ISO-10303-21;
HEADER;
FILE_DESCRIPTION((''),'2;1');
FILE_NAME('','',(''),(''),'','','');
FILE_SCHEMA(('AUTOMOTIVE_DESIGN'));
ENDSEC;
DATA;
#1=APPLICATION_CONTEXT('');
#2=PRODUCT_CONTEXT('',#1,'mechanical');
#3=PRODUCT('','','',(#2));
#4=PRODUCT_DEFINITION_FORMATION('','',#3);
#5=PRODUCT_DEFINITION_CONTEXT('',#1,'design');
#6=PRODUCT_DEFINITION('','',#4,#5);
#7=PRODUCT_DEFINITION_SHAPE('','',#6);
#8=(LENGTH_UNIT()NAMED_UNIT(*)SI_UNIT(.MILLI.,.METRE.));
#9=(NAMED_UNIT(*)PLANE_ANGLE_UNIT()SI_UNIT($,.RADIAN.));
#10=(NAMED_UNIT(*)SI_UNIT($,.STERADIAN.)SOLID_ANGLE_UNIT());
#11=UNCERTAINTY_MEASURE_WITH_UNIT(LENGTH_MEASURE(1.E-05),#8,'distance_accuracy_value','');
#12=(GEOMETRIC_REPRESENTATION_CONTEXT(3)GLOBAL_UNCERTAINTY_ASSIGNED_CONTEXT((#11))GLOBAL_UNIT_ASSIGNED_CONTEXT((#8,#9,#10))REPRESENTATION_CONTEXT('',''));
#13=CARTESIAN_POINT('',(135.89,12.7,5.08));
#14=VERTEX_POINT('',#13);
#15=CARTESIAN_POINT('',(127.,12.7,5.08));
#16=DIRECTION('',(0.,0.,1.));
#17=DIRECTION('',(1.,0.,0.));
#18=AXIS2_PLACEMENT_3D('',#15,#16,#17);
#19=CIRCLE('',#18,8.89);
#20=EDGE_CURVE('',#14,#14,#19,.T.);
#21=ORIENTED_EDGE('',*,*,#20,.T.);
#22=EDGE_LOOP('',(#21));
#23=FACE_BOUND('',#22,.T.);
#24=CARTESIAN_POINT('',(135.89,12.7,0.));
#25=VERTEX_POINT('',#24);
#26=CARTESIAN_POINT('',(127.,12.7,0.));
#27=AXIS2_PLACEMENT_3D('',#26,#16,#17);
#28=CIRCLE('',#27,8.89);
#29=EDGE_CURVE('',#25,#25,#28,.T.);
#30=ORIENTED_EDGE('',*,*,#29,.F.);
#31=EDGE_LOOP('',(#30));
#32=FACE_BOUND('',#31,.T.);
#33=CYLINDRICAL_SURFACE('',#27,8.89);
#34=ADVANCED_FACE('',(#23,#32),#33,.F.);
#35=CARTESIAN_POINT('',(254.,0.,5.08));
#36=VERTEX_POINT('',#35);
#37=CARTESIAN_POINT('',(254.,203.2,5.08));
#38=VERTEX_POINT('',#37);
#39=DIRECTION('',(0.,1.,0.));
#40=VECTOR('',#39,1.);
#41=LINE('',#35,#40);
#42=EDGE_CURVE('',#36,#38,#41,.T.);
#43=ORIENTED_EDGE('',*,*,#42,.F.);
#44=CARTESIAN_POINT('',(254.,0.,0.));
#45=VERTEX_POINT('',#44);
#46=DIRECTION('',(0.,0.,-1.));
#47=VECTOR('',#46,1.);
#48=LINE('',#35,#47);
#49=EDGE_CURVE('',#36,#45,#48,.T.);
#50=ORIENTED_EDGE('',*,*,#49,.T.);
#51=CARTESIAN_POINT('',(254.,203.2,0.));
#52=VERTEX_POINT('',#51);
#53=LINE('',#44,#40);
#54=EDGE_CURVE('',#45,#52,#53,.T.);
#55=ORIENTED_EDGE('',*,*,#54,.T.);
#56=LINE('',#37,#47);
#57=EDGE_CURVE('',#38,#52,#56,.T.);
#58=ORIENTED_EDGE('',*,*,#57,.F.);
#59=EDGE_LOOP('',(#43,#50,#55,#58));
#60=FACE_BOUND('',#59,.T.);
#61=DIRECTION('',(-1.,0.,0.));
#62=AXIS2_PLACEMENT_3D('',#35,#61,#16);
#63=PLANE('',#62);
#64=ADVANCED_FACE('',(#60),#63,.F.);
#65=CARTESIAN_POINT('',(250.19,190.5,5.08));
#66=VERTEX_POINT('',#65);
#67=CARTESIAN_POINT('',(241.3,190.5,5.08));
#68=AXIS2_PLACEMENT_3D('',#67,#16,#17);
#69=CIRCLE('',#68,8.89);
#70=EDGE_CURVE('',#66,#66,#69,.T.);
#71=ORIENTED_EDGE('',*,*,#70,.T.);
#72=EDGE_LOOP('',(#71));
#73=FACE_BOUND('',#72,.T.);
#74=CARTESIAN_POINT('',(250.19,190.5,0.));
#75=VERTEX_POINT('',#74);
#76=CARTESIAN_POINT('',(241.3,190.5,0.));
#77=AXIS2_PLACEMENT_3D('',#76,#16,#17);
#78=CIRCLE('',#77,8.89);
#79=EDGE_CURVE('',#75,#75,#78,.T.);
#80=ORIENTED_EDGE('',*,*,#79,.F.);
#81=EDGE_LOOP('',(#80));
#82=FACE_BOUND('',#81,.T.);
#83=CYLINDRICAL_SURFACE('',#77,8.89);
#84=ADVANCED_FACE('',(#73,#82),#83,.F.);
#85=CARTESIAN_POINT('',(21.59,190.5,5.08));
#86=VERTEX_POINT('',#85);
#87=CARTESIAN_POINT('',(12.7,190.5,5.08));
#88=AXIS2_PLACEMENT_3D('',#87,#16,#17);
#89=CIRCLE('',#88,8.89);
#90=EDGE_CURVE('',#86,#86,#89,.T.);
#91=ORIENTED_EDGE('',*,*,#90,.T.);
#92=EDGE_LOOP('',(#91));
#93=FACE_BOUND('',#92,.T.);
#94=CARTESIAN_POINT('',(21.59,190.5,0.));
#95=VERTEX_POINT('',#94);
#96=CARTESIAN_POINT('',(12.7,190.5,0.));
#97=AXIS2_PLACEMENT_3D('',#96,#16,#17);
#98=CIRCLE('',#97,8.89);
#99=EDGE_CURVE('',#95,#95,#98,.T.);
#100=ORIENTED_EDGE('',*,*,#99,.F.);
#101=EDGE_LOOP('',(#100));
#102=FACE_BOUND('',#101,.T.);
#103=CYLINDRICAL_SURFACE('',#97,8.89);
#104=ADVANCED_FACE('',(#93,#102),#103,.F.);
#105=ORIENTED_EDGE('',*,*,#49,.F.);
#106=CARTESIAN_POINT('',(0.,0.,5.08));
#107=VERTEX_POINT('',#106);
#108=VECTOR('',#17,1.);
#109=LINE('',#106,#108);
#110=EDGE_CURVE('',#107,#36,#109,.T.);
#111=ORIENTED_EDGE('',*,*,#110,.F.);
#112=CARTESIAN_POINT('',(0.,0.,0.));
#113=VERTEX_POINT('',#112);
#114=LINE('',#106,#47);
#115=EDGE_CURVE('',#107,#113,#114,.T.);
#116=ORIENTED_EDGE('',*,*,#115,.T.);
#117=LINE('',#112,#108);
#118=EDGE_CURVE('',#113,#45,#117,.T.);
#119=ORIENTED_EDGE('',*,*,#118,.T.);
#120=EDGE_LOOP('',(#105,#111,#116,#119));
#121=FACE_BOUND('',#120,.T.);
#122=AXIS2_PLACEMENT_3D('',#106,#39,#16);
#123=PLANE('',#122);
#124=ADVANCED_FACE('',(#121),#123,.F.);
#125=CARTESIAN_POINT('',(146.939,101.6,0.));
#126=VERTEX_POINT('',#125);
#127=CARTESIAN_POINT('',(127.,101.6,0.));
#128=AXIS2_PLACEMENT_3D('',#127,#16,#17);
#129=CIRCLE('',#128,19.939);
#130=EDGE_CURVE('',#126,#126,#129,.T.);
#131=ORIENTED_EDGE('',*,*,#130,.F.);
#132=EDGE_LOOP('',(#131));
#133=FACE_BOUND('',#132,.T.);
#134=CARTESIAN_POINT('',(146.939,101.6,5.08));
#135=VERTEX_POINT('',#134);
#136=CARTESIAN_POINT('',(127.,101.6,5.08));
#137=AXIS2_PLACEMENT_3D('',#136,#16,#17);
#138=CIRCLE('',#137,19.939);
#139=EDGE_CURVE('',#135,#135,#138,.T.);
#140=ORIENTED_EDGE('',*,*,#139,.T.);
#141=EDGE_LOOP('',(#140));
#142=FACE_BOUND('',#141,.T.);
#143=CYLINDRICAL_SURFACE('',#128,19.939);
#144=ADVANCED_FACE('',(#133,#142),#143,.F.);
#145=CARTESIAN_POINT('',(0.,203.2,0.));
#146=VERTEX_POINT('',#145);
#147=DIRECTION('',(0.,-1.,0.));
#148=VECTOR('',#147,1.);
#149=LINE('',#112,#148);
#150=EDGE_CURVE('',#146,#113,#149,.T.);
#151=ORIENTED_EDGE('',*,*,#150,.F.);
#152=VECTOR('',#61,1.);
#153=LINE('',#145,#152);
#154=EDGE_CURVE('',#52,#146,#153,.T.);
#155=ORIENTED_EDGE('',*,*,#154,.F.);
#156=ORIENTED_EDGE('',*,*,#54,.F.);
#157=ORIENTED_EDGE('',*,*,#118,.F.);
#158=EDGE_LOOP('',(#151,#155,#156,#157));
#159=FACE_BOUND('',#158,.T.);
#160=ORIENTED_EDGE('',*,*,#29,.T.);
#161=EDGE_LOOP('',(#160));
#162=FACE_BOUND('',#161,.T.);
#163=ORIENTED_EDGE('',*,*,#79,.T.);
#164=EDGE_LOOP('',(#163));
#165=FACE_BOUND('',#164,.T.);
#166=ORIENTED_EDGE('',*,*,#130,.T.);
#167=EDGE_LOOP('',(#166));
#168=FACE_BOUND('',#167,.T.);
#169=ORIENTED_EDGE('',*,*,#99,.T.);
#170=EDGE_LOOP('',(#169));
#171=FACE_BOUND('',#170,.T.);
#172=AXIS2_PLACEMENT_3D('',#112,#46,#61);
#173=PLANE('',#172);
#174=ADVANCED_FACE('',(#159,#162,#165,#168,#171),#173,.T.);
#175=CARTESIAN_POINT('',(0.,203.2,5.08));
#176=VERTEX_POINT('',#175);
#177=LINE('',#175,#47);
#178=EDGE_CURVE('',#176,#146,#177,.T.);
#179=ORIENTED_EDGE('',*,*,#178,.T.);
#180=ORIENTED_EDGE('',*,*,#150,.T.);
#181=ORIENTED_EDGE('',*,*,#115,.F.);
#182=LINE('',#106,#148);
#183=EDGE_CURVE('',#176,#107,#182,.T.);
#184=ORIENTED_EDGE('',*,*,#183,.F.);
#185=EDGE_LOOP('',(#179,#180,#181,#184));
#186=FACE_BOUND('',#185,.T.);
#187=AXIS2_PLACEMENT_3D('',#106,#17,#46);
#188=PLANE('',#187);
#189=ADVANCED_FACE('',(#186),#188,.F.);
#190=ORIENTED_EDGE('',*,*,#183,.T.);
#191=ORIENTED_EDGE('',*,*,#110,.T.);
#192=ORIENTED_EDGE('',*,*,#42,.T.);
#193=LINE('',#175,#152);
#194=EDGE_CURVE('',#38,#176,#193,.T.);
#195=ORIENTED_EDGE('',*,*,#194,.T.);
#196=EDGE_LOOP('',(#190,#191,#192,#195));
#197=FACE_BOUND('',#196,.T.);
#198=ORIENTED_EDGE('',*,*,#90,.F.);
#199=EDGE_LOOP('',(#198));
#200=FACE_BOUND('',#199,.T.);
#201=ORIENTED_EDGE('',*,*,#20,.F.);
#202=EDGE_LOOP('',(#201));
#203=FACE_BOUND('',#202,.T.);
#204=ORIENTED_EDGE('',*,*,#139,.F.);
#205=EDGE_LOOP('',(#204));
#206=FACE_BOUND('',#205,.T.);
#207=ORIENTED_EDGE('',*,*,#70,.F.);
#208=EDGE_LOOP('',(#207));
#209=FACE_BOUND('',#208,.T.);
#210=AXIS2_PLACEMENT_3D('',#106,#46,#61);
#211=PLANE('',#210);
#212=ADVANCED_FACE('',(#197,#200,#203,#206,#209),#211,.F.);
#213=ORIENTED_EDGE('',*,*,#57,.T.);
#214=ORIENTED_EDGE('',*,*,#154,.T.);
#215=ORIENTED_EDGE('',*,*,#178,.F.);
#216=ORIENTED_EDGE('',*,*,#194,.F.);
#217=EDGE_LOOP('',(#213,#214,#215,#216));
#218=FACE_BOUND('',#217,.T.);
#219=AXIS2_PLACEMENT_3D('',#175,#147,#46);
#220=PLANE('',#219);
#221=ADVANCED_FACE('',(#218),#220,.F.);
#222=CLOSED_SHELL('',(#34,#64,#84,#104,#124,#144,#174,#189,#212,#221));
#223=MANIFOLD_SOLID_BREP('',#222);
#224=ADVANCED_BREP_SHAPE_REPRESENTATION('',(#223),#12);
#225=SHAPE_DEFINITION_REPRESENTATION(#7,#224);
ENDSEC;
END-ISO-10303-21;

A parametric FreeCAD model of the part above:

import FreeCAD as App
import Part
import Sketcher

V = App.Vector
Q = App.Units.Quantity


def add_polygon(sketch, points):
    """Adds a closed chain of lines whose ends are joined by coincident constraints."""
    first, n = sketch.GeometryCount, len(points)
    for a, b in zip(points, points[1:] + points[:1]):
        sketch.addGeometry(Part.LineSegment(App.Vector(*a, 0), App.Vector(*b, 0)), False)
    for i in range(n):
        sketch.addConstraint(Sketcher.Constraint("Coincident", first + i, 2, first + (i + 1) % n, 1))

doc = App.newDocument("Part")
body = doc.addObject("PartDesign::Body", "Body")

# Sketch on XY plane
sketch1 = body.newObject("Sketcher::SketchObject", "Sketch")
sketch1.AttachmentSupport = (doc.getObject("XY_Plane"), [""])
sketch1.MapMode = "FlatFace"
add_polygon(sketch1, [(0, 203), (0, 0), (254, 0), (254, 203)])  # lines 0-3
sketch1.addConstraint(Sketcher.Constraint("Vertical", 0))
sketch1.addConstraint(Sketcher.Constraint("Horizontal", 1))
sketch1.addConstraint(Sketcher.Constraint("Vertical", 2))
sketch1.addConstraint(Sketcher.Constraint("Horizontal", 3))
sketch1.addConstraint(Sketcher.Constraint("Coincident", 0, 2, -1, 1))
sketch1.addConstraint(Sketcher.Constraint("DistanceX", 1, 1, 1, 2, Q("10 in")))
sketch1.addConstraint(Sketcher.Constraint("DistanceY", 0, 2, 0, 1, Q("8 in")))
pad1 = body.newObject("PartDesign::Pad", "Pad")
pad1.Profile = sketch1
pad1.Length = Q("0.2 in")

# Sketch on XY plane
sketch2 = body.newObject("Sketcher::SketchObject", "Sketch001")
sketch2.AttachmentSupport = (doc.getObject("XY_Plane"), [""])
sketch2.MapMode = "FlatFace"
sketch2.AttachmentOffset = App.Placement(V(0, 0, 0.2 * 25.4), App.Rotation())
sketch2.addGeometry(Part.Circle(V(127, 102, 0), V(0, 0, 1), 20), False)
sketch2.addConstraint(Sketcher.Constraint("Diameter", 0, Q("1.57 in")))
sketch2.addConstraint(Sketcher.Constraint("DistanceX", -1, 1, 0, 3, Q("5 in")))
sketch2.addConstraint(Sketcher.Constraint("DistanceY", -1, 1, 0, 3, Q("4 in")))
pocket1 = body.newObject("PartDesign::Pocket", "Pocket")
pocket1.Profile = sketch2
pocket1.Type = "ThroughAll"

# Sketch on XY plane
sketch3 = body.newObject("Sketcher::SketchObject", "Sketch002")
sketch3.AttachmentSupport = (doc.getObject("XY_Plane"), [""])
sketch3.MapMode = "FlatFace"
sketch3.AttachmentOffset = App.Placement(V(0, 0, 0.2 * 25.4), App.Rotation())
sketch3.addGeometry(Part.Circle(V(13, 190, 0), V(0, 0, 1), 9), False)
sketch3.addGeometry(Part.Circle(V(241, 190, 0), V(0, 0, 1), 9), False)
sketch3.addGeometry(Part.Circle(V(127, 13, 0), V(0, 0, 1), 9), False)
sketch3.addConstraint(Sketcher.Constraint("Equal", 0, 1))
sketch3.addConstraint(Sketcher.Constraint("Equal", 1, 2))
sketch3.addConstraint(Sketcher.Constraint("Horizontal", 0, 3, 1, 3))
sketch3.addConstraint(Sketcher.Constraint("Diameter", 0, Q("0.7 in")))
sketch3.addConstraint(Sketcher.Constraint("DistanceX", -1, 1, 2, 3, Q("5 in")))
sketch3.addConstraint(Sketcher.Constraint("DistanceX", 0, 3, 1, 3, Q("9 in")))
sketch3.addConstraint(Sketcher.Constraint("DistanceY", 2, 3, 0, 3, Q("7 in")))
sketch3.addConstraint(Sketcher.Constraint("DistanceX", -1, 1, 0, 3, Q("0.5 in")))
sketch3.addConstraint(Sketcher.Constraint("DistanceY", -1, 1, 0, 3, Q("7.5 in")))
pocket2 = body.newObject("PartDesign::Pocket", "Pocket001")
pocket2.Profile = sketch3
pocket2.Type = "ThroughAll"

doc.recompute()
